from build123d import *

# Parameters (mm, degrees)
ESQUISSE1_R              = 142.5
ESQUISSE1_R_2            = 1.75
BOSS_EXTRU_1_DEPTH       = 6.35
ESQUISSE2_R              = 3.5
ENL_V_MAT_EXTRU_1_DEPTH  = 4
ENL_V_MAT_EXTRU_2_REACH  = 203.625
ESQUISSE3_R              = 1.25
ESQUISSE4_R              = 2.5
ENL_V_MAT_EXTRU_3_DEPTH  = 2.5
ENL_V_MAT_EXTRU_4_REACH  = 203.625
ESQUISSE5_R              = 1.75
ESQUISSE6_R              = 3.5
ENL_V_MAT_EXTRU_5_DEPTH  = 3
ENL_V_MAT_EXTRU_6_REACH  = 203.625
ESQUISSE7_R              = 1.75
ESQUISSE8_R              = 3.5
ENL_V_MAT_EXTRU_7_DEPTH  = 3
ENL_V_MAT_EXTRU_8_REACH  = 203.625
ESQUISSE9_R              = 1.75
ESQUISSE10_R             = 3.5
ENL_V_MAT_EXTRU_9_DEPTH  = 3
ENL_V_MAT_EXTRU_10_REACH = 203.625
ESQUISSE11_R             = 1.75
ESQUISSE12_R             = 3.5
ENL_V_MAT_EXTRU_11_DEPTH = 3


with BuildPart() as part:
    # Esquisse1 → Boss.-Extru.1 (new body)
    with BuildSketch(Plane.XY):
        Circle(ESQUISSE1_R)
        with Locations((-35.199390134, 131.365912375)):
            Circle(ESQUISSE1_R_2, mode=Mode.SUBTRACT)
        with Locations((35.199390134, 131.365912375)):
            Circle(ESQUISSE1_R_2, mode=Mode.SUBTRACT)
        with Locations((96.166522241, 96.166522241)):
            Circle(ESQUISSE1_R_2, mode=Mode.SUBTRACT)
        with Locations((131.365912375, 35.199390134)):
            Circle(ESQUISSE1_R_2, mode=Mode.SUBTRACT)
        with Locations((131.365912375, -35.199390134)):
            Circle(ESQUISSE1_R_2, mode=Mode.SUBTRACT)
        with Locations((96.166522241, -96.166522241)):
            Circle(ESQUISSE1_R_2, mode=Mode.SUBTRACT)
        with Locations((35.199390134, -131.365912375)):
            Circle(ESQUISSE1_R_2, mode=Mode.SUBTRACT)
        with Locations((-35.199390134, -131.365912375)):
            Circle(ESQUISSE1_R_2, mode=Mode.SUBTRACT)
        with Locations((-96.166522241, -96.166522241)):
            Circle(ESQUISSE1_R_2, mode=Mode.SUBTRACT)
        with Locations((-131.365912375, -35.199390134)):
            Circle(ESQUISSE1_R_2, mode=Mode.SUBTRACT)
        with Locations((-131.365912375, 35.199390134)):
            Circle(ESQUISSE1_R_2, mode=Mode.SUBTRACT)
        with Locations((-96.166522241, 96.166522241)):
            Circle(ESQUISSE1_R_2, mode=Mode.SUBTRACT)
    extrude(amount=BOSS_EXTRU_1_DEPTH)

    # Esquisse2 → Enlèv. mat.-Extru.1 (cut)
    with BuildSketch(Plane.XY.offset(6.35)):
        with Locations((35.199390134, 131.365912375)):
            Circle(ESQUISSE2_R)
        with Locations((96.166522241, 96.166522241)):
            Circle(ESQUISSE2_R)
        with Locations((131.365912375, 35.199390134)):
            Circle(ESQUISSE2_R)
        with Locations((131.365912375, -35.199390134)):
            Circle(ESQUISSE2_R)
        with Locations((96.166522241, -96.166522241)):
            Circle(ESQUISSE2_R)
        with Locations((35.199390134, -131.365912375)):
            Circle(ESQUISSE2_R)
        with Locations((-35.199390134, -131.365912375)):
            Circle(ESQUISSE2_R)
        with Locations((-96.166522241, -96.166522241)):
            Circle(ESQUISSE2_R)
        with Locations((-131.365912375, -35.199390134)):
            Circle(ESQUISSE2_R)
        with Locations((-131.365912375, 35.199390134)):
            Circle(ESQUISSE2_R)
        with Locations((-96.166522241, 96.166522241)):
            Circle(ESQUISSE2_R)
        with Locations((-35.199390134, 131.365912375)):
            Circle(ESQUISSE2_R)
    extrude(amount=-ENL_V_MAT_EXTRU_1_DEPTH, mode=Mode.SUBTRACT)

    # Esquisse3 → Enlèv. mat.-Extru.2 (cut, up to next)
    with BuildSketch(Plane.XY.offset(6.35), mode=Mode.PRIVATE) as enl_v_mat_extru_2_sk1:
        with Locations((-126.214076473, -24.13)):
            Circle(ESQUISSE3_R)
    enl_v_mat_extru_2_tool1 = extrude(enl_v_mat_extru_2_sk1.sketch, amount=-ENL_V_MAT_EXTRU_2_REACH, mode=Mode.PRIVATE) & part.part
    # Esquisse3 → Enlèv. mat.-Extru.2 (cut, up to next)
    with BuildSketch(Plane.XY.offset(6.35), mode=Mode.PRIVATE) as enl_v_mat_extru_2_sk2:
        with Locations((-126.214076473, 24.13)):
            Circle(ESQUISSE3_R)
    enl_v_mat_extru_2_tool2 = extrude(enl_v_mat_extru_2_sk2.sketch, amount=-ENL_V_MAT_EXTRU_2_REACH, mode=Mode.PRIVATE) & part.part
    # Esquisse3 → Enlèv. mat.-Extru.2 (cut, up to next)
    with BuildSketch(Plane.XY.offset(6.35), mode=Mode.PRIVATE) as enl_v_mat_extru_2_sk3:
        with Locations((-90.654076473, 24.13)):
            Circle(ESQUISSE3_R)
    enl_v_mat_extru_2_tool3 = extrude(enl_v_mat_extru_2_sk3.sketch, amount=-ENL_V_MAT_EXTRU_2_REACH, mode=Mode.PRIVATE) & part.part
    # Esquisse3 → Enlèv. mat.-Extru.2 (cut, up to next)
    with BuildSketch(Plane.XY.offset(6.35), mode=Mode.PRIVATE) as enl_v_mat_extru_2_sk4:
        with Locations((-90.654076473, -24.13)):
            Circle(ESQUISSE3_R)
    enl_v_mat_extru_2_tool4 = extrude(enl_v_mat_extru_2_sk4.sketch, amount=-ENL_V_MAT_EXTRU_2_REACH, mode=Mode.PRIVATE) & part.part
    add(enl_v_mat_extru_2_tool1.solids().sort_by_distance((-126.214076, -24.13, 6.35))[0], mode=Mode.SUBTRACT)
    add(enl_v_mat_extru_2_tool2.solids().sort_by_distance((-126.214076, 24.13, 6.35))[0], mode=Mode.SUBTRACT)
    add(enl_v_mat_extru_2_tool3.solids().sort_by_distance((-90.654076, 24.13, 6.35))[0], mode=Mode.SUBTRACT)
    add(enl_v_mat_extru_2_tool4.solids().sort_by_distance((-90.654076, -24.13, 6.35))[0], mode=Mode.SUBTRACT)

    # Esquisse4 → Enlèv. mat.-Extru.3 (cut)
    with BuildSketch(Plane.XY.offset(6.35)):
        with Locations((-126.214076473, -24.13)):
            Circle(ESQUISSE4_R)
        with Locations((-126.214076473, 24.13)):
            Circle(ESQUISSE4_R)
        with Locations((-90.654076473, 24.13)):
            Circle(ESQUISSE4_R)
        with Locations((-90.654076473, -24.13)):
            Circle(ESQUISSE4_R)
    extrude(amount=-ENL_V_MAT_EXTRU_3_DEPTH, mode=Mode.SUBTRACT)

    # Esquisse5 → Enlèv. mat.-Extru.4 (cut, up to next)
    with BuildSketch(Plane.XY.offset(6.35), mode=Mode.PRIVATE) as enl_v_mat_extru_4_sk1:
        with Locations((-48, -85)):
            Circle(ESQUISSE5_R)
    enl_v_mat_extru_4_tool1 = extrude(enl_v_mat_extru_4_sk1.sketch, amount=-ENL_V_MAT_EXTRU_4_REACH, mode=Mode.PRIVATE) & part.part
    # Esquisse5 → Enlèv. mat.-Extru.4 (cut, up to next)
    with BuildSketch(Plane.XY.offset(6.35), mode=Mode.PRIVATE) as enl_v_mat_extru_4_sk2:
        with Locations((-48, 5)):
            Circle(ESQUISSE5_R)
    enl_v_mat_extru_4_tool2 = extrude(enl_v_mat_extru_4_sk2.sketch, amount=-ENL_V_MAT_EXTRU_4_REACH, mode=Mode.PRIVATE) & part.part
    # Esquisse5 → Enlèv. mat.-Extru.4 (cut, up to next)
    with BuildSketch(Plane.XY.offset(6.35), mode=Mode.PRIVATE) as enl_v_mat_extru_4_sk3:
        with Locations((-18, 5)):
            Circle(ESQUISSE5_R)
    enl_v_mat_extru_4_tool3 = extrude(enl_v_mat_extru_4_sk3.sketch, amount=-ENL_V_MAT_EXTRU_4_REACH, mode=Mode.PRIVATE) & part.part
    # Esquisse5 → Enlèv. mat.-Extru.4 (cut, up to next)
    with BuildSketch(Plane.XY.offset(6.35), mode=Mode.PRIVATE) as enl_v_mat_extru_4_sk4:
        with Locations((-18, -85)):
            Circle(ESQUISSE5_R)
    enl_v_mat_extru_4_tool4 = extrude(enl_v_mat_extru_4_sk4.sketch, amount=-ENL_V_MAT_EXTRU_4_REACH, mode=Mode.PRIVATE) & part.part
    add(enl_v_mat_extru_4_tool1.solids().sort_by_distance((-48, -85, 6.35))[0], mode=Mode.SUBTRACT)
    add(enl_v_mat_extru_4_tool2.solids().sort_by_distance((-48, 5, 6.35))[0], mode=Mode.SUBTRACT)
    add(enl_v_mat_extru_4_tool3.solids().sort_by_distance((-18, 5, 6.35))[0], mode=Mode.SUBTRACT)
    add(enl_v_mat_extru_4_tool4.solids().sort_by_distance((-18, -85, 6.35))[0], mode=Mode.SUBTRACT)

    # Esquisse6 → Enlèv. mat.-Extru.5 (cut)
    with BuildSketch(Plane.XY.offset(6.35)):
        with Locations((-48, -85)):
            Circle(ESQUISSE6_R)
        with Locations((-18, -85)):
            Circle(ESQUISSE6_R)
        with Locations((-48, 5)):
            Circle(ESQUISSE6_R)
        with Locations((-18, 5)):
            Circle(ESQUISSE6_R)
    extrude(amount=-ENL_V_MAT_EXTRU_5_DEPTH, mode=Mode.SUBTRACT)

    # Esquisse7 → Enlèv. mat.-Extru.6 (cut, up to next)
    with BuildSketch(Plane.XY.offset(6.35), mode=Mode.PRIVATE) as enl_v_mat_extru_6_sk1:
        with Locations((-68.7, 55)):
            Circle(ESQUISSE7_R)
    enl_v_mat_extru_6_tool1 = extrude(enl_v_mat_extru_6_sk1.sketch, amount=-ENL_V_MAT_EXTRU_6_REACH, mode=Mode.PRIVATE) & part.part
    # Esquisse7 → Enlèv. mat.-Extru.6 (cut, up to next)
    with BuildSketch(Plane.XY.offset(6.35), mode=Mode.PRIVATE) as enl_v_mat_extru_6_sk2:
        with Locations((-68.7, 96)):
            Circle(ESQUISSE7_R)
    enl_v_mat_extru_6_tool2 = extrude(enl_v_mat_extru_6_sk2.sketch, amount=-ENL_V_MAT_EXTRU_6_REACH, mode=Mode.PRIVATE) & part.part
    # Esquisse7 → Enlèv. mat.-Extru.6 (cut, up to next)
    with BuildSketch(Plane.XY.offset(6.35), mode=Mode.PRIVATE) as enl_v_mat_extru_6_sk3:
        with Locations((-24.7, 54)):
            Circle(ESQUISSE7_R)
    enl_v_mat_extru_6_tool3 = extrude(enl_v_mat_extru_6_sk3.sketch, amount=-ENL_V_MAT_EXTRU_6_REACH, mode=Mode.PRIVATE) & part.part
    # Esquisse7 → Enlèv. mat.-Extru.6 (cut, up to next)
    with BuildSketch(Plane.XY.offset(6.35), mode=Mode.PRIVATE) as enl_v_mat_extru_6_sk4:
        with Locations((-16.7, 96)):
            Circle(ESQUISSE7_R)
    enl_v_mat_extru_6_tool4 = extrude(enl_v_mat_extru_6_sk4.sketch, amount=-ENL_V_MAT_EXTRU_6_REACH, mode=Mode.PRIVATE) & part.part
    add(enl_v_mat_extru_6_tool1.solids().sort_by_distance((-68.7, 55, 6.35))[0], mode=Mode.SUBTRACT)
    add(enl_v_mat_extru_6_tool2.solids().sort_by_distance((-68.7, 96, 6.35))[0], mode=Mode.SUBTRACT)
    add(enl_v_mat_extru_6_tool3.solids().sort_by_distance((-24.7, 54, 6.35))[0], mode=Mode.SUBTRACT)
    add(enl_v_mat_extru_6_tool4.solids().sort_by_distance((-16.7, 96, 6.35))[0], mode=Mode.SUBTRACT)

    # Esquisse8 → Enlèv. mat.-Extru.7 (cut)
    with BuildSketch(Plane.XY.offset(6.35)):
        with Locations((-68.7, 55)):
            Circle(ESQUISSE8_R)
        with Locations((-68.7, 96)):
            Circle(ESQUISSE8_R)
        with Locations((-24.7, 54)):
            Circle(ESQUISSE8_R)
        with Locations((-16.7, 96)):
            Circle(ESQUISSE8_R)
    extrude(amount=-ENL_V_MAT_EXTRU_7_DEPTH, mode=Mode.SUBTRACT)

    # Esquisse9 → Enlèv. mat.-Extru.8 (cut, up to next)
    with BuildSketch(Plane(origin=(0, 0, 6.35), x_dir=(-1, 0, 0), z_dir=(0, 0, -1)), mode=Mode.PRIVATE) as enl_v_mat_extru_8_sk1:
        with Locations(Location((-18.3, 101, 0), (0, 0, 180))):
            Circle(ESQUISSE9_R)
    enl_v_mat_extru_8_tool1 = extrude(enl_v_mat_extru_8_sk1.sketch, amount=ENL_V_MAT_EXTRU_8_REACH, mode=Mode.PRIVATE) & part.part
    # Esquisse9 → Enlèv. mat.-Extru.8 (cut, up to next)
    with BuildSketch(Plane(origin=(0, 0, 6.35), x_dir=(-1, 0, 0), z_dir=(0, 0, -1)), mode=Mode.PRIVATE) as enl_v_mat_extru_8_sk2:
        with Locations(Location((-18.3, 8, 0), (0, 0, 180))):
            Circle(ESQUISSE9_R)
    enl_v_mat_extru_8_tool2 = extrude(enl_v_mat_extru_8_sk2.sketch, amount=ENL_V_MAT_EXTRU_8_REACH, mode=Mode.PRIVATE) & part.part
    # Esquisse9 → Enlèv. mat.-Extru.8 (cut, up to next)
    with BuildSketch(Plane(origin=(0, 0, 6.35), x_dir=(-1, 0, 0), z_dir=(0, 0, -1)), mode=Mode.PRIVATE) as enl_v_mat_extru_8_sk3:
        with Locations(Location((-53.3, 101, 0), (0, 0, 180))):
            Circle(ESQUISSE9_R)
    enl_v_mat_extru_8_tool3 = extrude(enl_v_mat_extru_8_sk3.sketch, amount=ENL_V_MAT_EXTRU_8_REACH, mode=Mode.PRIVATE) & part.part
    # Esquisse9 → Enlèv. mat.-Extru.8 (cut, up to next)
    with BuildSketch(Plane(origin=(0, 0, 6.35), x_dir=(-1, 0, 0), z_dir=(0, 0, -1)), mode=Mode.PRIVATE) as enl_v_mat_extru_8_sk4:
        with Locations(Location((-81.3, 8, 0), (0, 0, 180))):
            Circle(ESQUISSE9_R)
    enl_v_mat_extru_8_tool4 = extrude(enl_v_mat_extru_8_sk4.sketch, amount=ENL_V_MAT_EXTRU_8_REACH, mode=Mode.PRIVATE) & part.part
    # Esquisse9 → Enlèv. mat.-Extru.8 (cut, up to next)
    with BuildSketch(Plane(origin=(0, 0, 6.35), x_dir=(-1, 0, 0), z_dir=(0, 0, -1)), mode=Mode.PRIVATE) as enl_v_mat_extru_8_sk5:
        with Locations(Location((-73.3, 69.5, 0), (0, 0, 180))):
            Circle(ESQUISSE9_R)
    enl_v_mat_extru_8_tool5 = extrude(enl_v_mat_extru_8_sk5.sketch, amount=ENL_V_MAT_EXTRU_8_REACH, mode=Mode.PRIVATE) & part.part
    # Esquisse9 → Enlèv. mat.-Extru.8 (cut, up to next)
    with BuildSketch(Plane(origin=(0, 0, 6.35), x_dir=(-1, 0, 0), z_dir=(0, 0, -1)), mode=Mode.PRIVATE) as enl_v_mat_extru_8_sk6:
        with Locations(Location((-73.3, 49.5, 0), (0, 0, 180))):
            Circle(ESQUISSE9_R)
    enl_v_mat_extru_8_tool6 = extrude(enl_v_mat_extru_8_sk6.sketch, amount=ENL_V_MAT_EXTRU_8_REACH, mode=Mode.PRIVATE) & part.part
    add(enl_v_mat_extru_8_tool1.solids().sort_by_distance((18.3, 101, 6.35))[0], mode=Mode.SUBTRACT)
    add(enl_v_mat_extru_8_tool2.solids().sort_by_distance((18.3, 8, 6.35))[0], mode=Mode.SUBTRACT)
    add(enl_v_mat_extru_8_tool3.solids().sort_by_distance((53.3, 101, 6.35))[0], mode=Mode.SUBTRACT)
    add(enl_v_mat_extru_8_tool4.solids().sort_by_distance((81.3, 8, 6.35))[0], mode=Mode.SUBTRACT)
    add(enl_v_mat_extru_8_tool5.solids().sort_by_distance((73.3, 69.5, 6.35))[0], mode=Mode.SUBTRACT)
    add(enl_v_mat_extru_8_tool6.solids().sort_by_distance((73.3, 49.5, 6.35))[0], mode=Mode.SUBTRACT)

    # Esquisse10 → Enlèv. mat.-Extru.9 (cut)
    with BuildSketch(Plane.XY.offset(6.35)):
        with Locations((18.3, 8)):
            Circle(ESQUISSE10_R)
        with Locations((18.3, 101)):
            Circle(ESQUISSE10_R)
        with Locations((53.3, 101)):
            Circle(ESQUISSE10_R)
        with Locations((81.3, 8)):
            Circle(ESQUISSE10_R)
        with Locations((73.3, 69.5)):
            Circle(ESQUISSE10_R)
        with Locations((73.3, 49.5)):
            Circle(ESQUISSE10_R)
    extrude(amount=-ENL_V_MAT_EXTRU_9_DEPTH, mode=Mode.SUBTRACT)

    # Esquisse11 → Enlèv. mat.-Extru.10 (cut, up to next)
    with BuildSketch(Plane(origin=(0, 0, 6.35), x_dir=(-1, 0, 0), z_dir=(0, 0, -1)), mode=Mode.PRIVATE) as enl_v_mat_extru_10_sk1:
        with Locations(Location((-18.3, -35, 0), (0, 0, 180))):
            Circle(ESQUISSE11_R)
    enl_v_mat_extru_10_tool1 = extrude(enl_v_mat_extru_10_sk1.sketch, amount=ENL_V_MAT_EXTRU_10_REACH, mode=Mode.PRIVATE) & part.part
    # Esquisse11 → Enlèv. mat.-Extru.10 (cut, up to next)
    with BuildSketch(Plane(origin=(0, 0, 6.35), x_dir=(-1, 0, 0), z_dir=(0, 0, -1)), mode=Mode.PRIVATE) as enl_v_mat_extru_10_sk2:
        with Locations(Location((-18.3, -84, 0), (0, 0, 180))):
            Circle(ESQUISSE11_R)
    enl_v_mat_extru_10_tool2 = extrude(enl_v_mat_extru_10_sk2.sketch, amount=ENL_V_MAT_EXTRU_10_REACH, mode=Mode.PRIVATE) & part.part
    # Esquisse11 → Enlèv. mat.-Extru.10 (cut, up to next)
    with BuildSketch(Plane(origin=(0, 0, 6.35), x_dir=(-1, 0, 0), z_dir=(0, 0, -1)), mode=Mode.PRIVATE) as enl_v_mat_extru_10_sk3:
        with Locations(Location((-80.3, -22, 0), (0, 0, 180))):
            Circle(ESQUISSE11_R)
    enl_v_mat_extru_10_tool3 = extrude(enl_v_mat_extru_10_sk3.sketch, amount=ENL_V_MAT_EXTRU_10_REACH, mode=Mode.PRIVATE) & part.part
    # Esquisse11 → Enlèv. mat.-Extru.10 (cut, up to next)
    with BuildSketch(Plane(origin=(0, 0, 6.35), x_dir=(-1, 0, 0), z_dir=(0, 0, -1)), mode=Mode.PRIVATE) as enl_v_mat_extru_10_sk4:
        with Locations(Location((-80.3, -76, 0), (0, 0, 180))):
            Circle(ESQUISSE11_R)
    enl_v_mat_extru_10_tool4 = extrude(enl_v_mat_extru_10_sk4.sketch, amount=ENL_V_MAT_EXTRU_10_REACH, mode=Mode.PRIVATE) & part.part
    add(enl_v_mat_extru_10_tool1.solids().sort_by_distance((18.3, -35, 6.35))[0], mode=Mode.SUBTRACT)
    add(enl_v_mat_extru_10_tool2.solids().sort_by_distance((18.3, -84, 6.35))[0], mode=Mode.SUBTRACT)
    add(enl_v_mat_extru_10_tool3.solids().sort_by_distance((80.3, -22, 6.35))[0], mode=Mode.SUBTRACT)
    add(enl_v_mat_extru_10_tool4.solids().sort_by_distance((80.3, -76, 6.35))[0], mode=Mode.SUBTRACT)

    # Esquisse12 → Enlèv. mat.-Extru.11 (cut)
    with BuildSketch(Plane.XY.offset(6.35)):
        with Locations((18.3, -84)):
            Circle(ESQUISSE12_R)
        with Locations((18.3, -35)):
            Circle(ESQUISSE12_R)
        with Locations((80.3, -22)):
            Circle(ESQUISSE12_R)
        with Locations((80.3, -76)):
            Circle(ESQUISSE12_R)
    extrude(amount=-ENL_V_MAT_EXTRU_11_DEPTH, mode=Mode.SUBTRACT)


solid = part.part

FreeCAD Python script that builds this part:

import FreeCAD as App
import Part
import Sketcher
Q = App.Units.Quantity

doc = App.newDocument("Part")
body = doc.addObject("PartDesign::Body", "Body")

# Sketch on XY plane
sketch1 = doc.addObject("Sketcher::SketchObject", "Sketch")
body.addObject(sketch1)
sketch1.AttachmentSupport = (doc.XY_Plane, [""])
sketch1.MapMode = "FlatFace"
sketch1.addGeometry(Part.Circle(App.Vector(0, 0, 0), App.Vector(0, 0, 1), 142.5), False)
sketch1.addGeometry(Part.Circle(App.Vector(-96.166522, -96.166522, 0), App.Vector(0, 0, 1), 1.75), False)
sketch1.addGeometry(Part.Circle(App.Vector(-35.19939, -131.365912, 0), App.Vector(0, 0, 1), 1.75), False)
sketch1.addGeometry(Part.Circle(App.Vector(-131.365912, -35.19939, 0), App.Vector(0, 0, 1), 1.75), False)
sketch1.addGeometry(Part.Circle(App.Vector(35.19939, -131.365912, 0), App.Vector(0, 0, 1), 1.75), False)
sketch1.addGeometry(Part.Circle(App.Vector(96.166522, -96.166522, 0), App.Vector(0, 0, 1), 1.75), False)
sketch1.addGeometry(Part.Circle(App.Vector(131.365912, -35.19939, 0), App.Vector(0, 0, 1), 1.75), False)
sketch1.addGeometry(Part.Circle(App.Vector(-131.365912, 35.19939, 0), App.Vector(0, 0, 1), 1.75), False)
sketch1.addGeometry(Part.Circle(App.Vector(-96.166522, 96.166522, 0), App.Vector(0, 0, 1), 1.75), False)
sketch1.addGeometry(Part.Circle(App.Vector(-35.19939, 131.365912, 0), App.Vector(0, 0, 1), 1.75), False)
sketch1.addGeometry(Part.Circle(App.Vector(131.365912, 35.19939, 0), App.Vector(0, 0, 1), 1.75), False)
sketch1.addGeometry(Part.Circle(App.Vector(35.19939, 131.365912, 0), App.Vector(0, 0, 1), 1.75), False)
sketch1.addGeometry(Part.Circle(App.Vector(96.166522, 96.166522, 0), App.Vector(0, 0, 1), 1.75), False)
sketch1.addConstraint(Sketcher.Constraint("Coincident", 0, 3, -1, 1))
sketch1.addConstraint(Sketcher.Constraint("Equal", 1, 2))
sketch1.addConstraint(Sketcher.Constraint("Equal", 2, 3))
sketch1.addConstraint(Sketcher.Constraint("Equal", 3, 4))
sketch1.addConstraint(Sketcher.Constraint("Equal", 4, 5))
sketch1.addConstraint(Sketcher.Constraint("Equal", 5, 6))
sketch1.addConstraint(Sketcher.Constraint("Equal", 6, 7))
sketch1.addConstraint(Sketcher.Constraint("Equal", 7, 8))
sketch1.addConstraint(Sketcher.Constraint("Equal", 8, 9))
sketch1.addConstraint(Sketcher.Constraint("Equal", 9, 10))
sketch1.addConstraint(Sketcher.Constraint("Equal", 10, 11))
sketch1.addConstraint(Sketcher.Constraint("Equal", 11, 12))
sketch1.addConstraint(Sketcher.Constraint("Symmetric", 6, 3, 7, 3, -1, 1))
sketch1.addConstraint(Sketcher.Constraint("Symmetric", 5, 3, 8, 3, -1, 1))
sketch1.addConstraint(Sketcher.Constraint("Symmetric", 4, 3, 9, 3, -1, 1))
sketch1.addConstraint(Sketcher.Constraint("Symmetric", 3, 3, 10, 3, -1, 1))
sketch1.addConstraint(Sketcher.Constraint("Symmetric", 2, 3, 11, 3, -1, 1))
sketch1.addConstraint(Sketcher.Constraint("Symmetric", 1, 3, 12, 3, -1, 1))
sketch1.addConstraint(Sketcher.Constraint("Symmetric", 2, 3, 4, 3, -2))
sketch1.addConstraint(Sketcher.Constraint("Symmetric", 1, 3, 5, 3, -2))
sketch1.addConstraint(Sketcher.Constraint("Symmetric", 3, 3, 6, 3, -2))
sketch1.addConstraint(Sketcher.Constraint("Diameter", 0, Q("285 mm")))
sketch1.addConstraint(Sketcher.Constraint("Diameter", 1, Q("3.5 mm")))
sketch1.addConstraint(Sketcher.Constraint("DistanceX", 2, 3, -1, 1, Q("35.19939 mm")))
sketch1.addConstraint(Sketcher.Constraint("DistanceY", 3, 3, -1, 1, Q("35.19939 mm")))
sketch1.addConstraint(Sketcher.Constraint("DistanceY", 2, 3, 1, 3, Q("35.19939 mm")))
sketch1.addConstraint(Sketcher.Constraint("DistanceX", 3, 3, 1, 3, Q("35.19939 mm")))
sketch1.addConstraint(Sketcher.Constraint("DistanceX", 1, 3, -1, 1, Q("96.166522 mm")))
sketch1.addConstraint(Sketcher.Constraint("DistanceY", 1, 3, -1, 1, Q("96.166522 mm")))
pad1 = doc.addObject("PartDesign::Pad", "Pad")
body.addObject(pad1)
pad1.Profile = sketch1
pad1.Length = 6.35

# Sketch on XY plane
sketch2 = doc.addObject("Sketcher::SketchObject", "Sketch001")
body.addObject(sketch2)
sketch2.AttachmentSupport = (doc.XY_Plane, [""])
sketch2.MapMode = "FlatFace"
sketch2.AttachmentOffset = App.Placement(App.Vector(0, 0, 6.35), App.Rotation())
sketch2.addGeometry(Part.Circle(App.Vector(35.19939, 131.365912, 0), App.Vector(0, 0, 1), 3.5), False)
sketch2.addGeometry(Part.Circle(App.Vector(96.166522, 96.166522, 0), App.Vector(0, 0, 1), 3.5), False)
sketch2.addGeometry(Part.Circle(App.Vector(131.365912, 35.19939, 0), App.Vector(0, 0, 1), 3.5), False)
sketch2.addGeometry(Part.Circle(App.Vector(131.365912, -35.19939, 0), App.Vector(0, 0, 1), 3.5), False)
sketch2.addGeometry(Part.Circle(App.Vector(96.166522, -96.166522, 0), App.Vector(0, 0, 1), 3.5), False)
sketch2.addGeometry(Part.Circle(App.Vector(35.19939, -131.365912, 0), App.Vector(0, 0, 1), 3.5), False)
sketch2.addGeometry(Part.Circle(App.Vector(-35.19939, -131.365912, 0), App.Vector(0, 0, 1), 3.5), False)
sketch2.addGeometry(Part.Circle(App.Vector(-96.166522, -96.166522, 0), App.Vector(0, 0, 1), 3.5), False)
sketch2.addGeometry(Part.Circle(App.Vector(-131.365912, -35.19939, 0), App.Vector(0, 0, 1), 3.5), False)
sketch2.addGeometry(Part.Circle(App.Vector(-131.365912, 35.19939, 0), App.Vector(0, 0, 1), 3.5), False)
sketch2.addGeometry(Part.Circle(App.Vector(-96.166522, 96.166522, 0), App.Vector(0, 0, 1), 3.5), False)
sketch2.addGeometry(Part.Circle(App.Vector(-35.19939, 131.365912, 0), App.Vector(0, 0, 1), 3.5), False)
sketch2.addConstraint(Sketcher.Constraint("Equal", 0, 1))
sketch2.addConstraint(Sketcher.Constraint("Equal", 1, 2))
sketch2.addConstraint(Sketcher.Constraint("Equal", 2, 3))
sketch2.addConstraint(Sketcher.Constraint("Equal", 3, 4))
sketch2.addConstraint(Sketcher.Constraint("Equal", 4, 5))
sketch2.addConstraint(Sketcher.Constraint("Equal", 5, 6))
sketch2.addConstraint(Sketcher.Constraint("Equal", 6, 7))
sketch2.addConstraint(Sketcher.Constraint("Equal", 7, 8))
sketch2.addConstraint(Sketcher.Constraint("Equal", 8, 9))
sketch2.addConstraint(Sketcher.Constraint("Equal", 9, 10))
sketch2.addConstraint(Sketcher.Constraint("Equal", 10, 11))
sketch2.addConstraint(Sketcher.Constraint("Symmetric", 0, 3, 6, 3, -1, 1))
sketch2.addConstraint(Sketcher.Constraint("Symmetric", 1, 3, 7, 3, -1, 1))
sketch2.addConstraint(Sketcher.Constraint("Symmetric", 2, 3, 8, 3, -1, 1))
sketch2.addConstraint(Sketcher.Constraint("Symmetric", 3, 3, 9, 3, -1, 1))
sketch2.addConstraint(Sketcher.Constraint("Symmetric", 4, 3, 10, 3, -1, 1))
sketch2.addConstraint(Sketcher.Constraint("Symmetric", 5, 3, 11, 3, -1, 1))
sketch2.addConstraint(Sketcher.Constraint("Symmetric", 5, 3, 6, 3, -2))
sketch2.addConstraint(Sketcher.Constraint("Symmetric", 4, 3, 7, 3, -2))
sketch2.addConstraint(Sketcher.Constraint("Symmetric", 3, 3, 8, 3, -2))
sketch2.addConstraint(Sketcher.Constraint("Diameter", 0, Q("7 mm")))
sketch2.addConstraint(Sketcher.Constraint("DistanceX", -1, 1, 0, 3, Q("35.19939 mm")))
sketch2.addConstraint(Sketcher.Constraint("DistanceY", -1, 1, 2, 3, Q("35.19939 mm")))
sketch2.addConstraint(Sketcher.Constraint("DistanceY", 1, 3, 0, 3, Q("35.19939 mm")))
sketch2.addConstraint(Sketcher.Constraint("DistanceX", 1, 3, 2, 3, Q("35.19939 mm")))
sketch2.addConstraint(Sketcher.Constraint("DistanceY", -1, 1, 0, 3, Q("131.365912 mm")))
sketch2.addConstraint(Sketcher.Constraint("DistanceX", -1, 1, 1, 3, Q("96.166522 mm")))
pocket1 = doc.addObject("PartDesign::Pocket", "Pocket")
body.addObject(pocket1)
pocket1.Profile = sketch2
pocket1.Length = 4

# Sketch on XY plane
sketch3 = doc.addObject("Sketcher::SketchObject", "Sketch002")
body.addObject(sketch3)
sketch3.AttachmentSupport = (doc.XY_Plane, [""])
sketch3.MapMode = "FlatFace"
sketch3.AttachmentOffset = App.Placement(App.Vector(0, 0, 6.35), App.Rotation())
sketch3.addGeometry(Part.Circle(App.Vector(-126.214076, -24.13, 0), App.Vector(0, 0, 1), 1.25), False)
sketch3.addConstraint(Sketcher.Constraint("Diameter", 0, Q("2.5 mm")))
sketch3.addConstraint(Sketcher.Constraint("DistanceY", 0, 3, -1, 1, Q("24.13 mm")))
sketch3.addConstraint(Sketcher.Constraint("DistanceX", 0, 3, -1, 1, Q("126.214076 mm")))
pocket2 = doc.addObject("PartDesign::Pocket", "Pocket001")
body.addObject(pocket2)
pocket2.Profile = sketch3
pocket2.Type = "UpToFirst"

# Sketch on XY plane
sketch4 = doc.addObject("Sketcher::SketchObject", "Sketch003")
body.addObject(sketch4)
sketch4.AttachmentSupport = (doc.XY_Plane, [""])
sketch4.MapMode = "FlatFace"
sketch4.AttachmentOffset = App.Placement(App.Vector(0, 0, 6.35), App.Rotation())
sketch4.addGeometry(Part.Circle(App.Vector(-126.214076, 24.13, 0), App.Vector(0, 0, 1), 1.25), False)
sketch4.addConstraint(Sketcher.Constraint("Diameter", 0, Q("2.5 mm")))
sketch4.addConstraint(Sketcher.Constraint("DistanceY", -1, 1, 0, 3, Q("24.13 mm")))
sketch4.addConstraint(Sketcher.Constraint("DistanceX", 0, 3, -1, 1, Q("126.214076 mm")))
pocket3 = doc.addObject("PartDesign::Pocket", "Pocket002")
body.addObject(pocket3)
pocket3.Profile = sketch4
pocket3.Type = "UpToFirst"

# Sketch on XY plane
sketch5 = doc.addObject("Sketcher::SketchObject", "Sketch004")
body.addObject(sketch5)
sketch5.AttachmentSupport = (doc.XY_Plane, [""])
sketch5.MapMode = "FlatFace"
sketch5.AttachmentOffset = App.Placement(App.Vector(0, 0, 6.35), App.Rotation())
sketch5.addGeometry(Part.Circle(App.Vector(-90.654076, 24.13, 0), App.Vector(0, 0, 1), 1.25), False)
sketch5.addConstraint(Sketcher.Constraint("Diameter", 0, Q("2.5 mm")))
sketch5.addConstraint(Sketcher.Constraint("DistanceY", -1, 1, 0, 3, Q("24.13 mm")))
sketch5.addConstraint(Sketcher.Constraint("DistanceX", 0, 3, -1, 1, Q("90.654076 mm")))
pocket4 = doc.addObject("PartDesign::Pocket", "Pocket003")
body.addObject(pocket4)
pocket4.Profile = sketch5
pocket4.Type = "UpToFirst"

# Sketch on XY plane
sketch6 = doc.addObject("Sketcher::SketchObject", "Sketch005")
body.addObject(sketch6)
sketch6.AttachmentSupport = (doc.XY_Plane, [""])
sketch6.MapMode = "FlatFace"
sketch6.AttachmentOffset = App.Placement(App.Vector(0, 0, 6.35), App.Rotation())
sketch6.addGeometry(Part.Circle(App.Vector(-90.654076, -24.13, 0), App.Vector(0, 0, 1), 1.25), False)
sketch6.addConstraint(Sketcher.Constraint("Diameter", 0, Q("2.5 mm")))
sketch6.addConstraint(Sketcher.Constraint("DistanceY", 0, 3, -1, 1, Q("24.13 mm")))
sketch6.addConstraint(Sketcher.Constraint("DistanceX", 0, 3, -1, 1, Q("90.654076 mm")))
pocket5 = doc.addObject("PartDesign::Pocket", "Pocket004")
body.addObject(pocket5)
pocket5.Profile = sketch6
pocket5.Type = "UpToFirst"

# Sketch on XY plane
sketch7 = doc.addObject("Sketcher::SketchObject", "Sketch006")
body.addObject(sketch7)
sketch7.AttachmentSupport = (doc.XY_Plane, [""])
sketch7.MapMode = "FlatFace"
sketch7.AttachmentOffset = App.Placement(App.Vector(0, 0, 6.35), App.Rotation())
sketch7.addGeometry(Part.Circle(App.Vector(-126.214076, -24.13, 0), App.Vector(0, 0, 1), 2.5), False)
sketch7.addGeometry(Part.Circle(App.Vector(-126.214076, 24.13, 0), App.Vector(0, 0, 1), 2.5), False)
sketch7.addGeometry(Part.Circle(App.Vector(-90.654076, 24.13, 0), App.Vector(0, 0, 1), 2.5), False)
sketch7.addGeometry(Part.Circle(App.Vector(-90.654076, -24.13, 0), App.Vector(0, 0, 1), 2.5), False)
sketch7.addConstraint(Sketcher.Constraint("Equal", 0, 1))
sketch7.addConstraint(Sketcher.Constraint("Equal", 1, 2))
sketch7.addConstraint(Sketcher.Constraint("Equal", 2, 3))
sketch7.addConstraint(Sketcher.Constraint("Symmetric", 0, 3, 1, 3, -1))
sketch7.addConstraint(Sketcher.Constraint("Symmetric", 2, 3, 3, 3, -1))
sketch7.addConstraint(Sketcher.Constraint("Horizontal", 1, 3, 2, 3))
sketch7.addConstraint(Sketcher.Constraint("Diameter", 0, Q("5 mm")))
sketch7.addConstraint(Sketcher.Constraint("DistanceY", 0, 3, -1, 1, Q("24.13 mm")))
sketch7.addConstraint(Sketcher.Constraint("DistanceX", 1, 3, 2, 3, Q("35.56 mm")))
sketch7.addConstraint(Sketcher.Constraint("DistanceX", 0, 3, -1, 1, Q("126.214076 mm")))
pocket6 = doc.addObject("PartDesign::Pocket", "Pocket005")
body.addObject(pocket6)
pocket6.Profile = sketch7
pocket6.Length = 2.5

# Sketch on XY plane
sketch8 = doc.addObject("Sketcher::SketchObject", "Sketch007")
body.addObject(sketch8)
sketch8.AttachmentSupport = (doc.XY_Plane, [""])
sketch8.MapMode = "FlatFace"
sketch8.AttachmentOffset = App.Placement(App.Vector(0, 0, 6.35), App.Rotation())
sketch8.addGeometry(Part.Circle(App.Vector(-48, -85, 0), App.Vector(0, 0, 1), 1.75), False)
sketch8.addConstraint(Sketcher.Constraint("Diameter", 0, Q("3.5 mm")))
sketch8.addConstraint(Sketcher.Constraint("DistanceX", 0, 3, -1, 1, Q("48 mm")))
sketch8.addConstraint(Sketcher.Constraint("DistanceY", 0, 3, -1, 1, Q("85 mm")))
pocket7 = doc.addObject("PartDesign::Pocket", "Pocket006")
body.addObject(pocket7)
pocket7.Profile = sketch8
pocket7.Type = "UpToFirst"

# Sketch on XY plane
sketch9 = doc.addObject("Sketcher::SketchObject", "Sketch008")
body.addObject(sketch9)
sketch9.AttachmentSupport = (doc.XY_Plane, [""])
sketch9.MapMode = "FlatFace"
sketch9.AttachmentOffset = App.Placement(App.Vector(0, 0, 6.35), App.Rotation())
sketch9.addGeometry(Part.Circle(App.Vector(-48, 5, 0), App.Vector(0, 0, 1), 1.75), False)
sketch9.addConstraint(Sketcher.Constraint("Diameter", 0, Q("3.5 mm")))
sketch9.addConstraint(Sketcher.Constraint("DistanceX", 0, 3, -1, 1, Q("48 mm")))
sketch9.addConstraint(Sketcher.Constraint("DistanceY", -1, 1, 0, 3, Q("5 mm")))
pocket8 = doc.addObject("PartDesign::Pocket", "Pocket007")
body.addObject(pocket8)
pocket8.Profile = sketch9
pocket8.Type = "UpToFirst"

# Sketch on XY plane
sketch10 = doc.addObject("Sketcher::SketchObject", "Sketch009")
body.addObject(sketch10)
sketch10.AttachmentSupport = (doc.XY_Plane, [""])
sketch10.MapMode = "FlatFace"
sketch10.AttachmentOffset = App.Placement(App.Vector(0, 0, 6.35), App.Rotation())
sketch10.addGeometry(Part.Circle(App.Vector(-18, 5, 0), App.Vector(0, 0, 1), 1.75), False)
sketch10.addConstraint(Sketcher.Constraint("Diameter", 0, Q("3.5 mm")))
sketch10.addConstraint(Sketcher.Constraint("DistanceX", 0, 3, -1, 1, Q("18 mm")))
sketch10.addConstraint(Sketcher.Constraint("DistanceY", -1, 1, 0, 3, Q("5 mm")))
pocket9 = doc.addObject("PartDesign::Pocket", "Pocket008")
body.addObject(pocket9)
pocket9.Profile = sketch10
pocket9.Type = "UpToFirst"

# Sketch on XY plane
sketch11 = doc.addObject("Sketcher::SketchObject", "Sketch010")
body.addObject(sketch11)
sketch11.AttachmentSupport = (doc.XY_Plane, [""])
sketch11.MapMode = "FlatFace"
sketch11.AttachmentOffset = App.Placement(App.Vector(0, 0, 6.35), App.Rotation())
sketch11.addGeometry(Part.Circle(App.Vector(-18, -85, 0), App.Vector(0, 0, 1), 1.75), False)
sketch11.addConstraint(Sketcher.Constraint("Diameter", 0, Q("3.5 mm")))
sketch11.addConstraint(Sketcher.Constraint("DistanceX", 0, 3, -1, 1, Q("18 mm")))
sketch11.addConstraint(Sketcher.Constraint("DistanceY", 0, 3, -1, 1, Q("85 mm")))
pocket10 = doc.addObject("PartDesign::Pocket", "Pocket009")
body.addObject(pocket10)
pocket10.Profile = sketch11
pocket10.Type = "UpToFirst"

# Sketch on XY plane
sketch12 = doc.addObject("Sketcher::SketchObject", "Sketch011")
body.addObject(sketch12)
sketch12.AttachmentSupport = (doc.XY_Plane, [""])
sketch12.MapMode = "FlatFace"
sketch12.AttachmentOffset = App.Placement(App.Vector(0, 0, 6.35), App.Rotation())
sketch12.addGeometry(Part.Circle(App.Vector(-48, -85, 0), App.Vector(0, 0, 1), 3.5), False)
sketch12.addGeometry(Part.Circle(App.Vector(-18, -85, 0), App.Vector(0, 0, 1), 3.5), False)
sketch12.addGeometry(Part.Circle(App.Vector(-48, 5, 0), App.Vector(0, 0, 1), 3.5), False)
sketch12.addGeometry(Part.Circle(App.Vector(-18, 5, 0), App.Vector(0, 0, 1), 3.5), False)
sketch12.addConstraint(Sketcher.Constraint("Equal", 0, 1))
sketch12.addConstraint(Sketcher.Constraint("Equal", 1, 2))
sketch12.addConstraint(Sketcher.Constraint("Equal", 2, 3))
sketch12.addConstraint(Sketcher.Constraint("Horizontal", 0, 3, 1, 3))
sketch12.addConstraint(Sketcher.Constraint("Horizontal", 2, 3, 3, 3))
sketch12.addConstraint(Sketcher.Constraint("Vertical", 0, 3, 2, 3))
sketch12.addConstraint(Sketcher.Constraint("Vertical", 1, 3, 3, 3))
sketch12.addConstraint(Sketcher.Constraint("Diameter", 0, Q("7 mm")))
sketch12.addConstraint(Sketcher.Constraint("DistanceX", 0, 3, -1, 1, Q("48 mm")))
sketch12.addConstraint(Sketcher.Constraint("DistanceY", 0, 3, -1, 1, Q("85 mm")))
sketch12.addConstraint(Sketcher.Constraint("DistanceX", 1, 3, -1, 1, Q("18 mm")))
sketch12.addConstraint(Sketcher.Constraint("DistanceY", -1, 1, 2, 3, Q("5 mm")))
pocket11 = doc.addObject("PartDesign::Pocket", "Pocket010")
body.addObject(pocket11)
pocket11.Profile = sketch12
pocket11.Length = 3

# Sketch on XY plane
sketch13 = doc.addObject("Sketcher::SketchObject", "Sketch012")
body.addObject(sketch13)
sketch13.AttachmentSupport = (doc.XY_Plane, [""])
sketch13.MapMode = "FlatFace"
sketch13.AttachmentOffset = App.Placement(App.Vector(0, 0, 6.35), App.Rotation())
sketch13.addGeometry(Part.Circle(App.Vector(-68.7, 55, 0), App.Vector(0, 0, 1), 1.75), False)
sketch13.addConstraint(Sketcher.Constraint("Diameter", 0, Q("3.5 mm")))
sketch13.addConstraint(Sketcher.Constraint("DistanceY", -1, 1, 0, 3, Q("55 mm")))
sketch13.addConstraint(Sketcher.Constraint("DistanceX", 0, 3, -1, 1, Q("68.7 mm")))
pocket12 = doc.addObject("PartDesign::Pocket", "Pocket011")
body.addObject(pocket12)
pocket12.Profile = sketch13
pocket12.Type = "UpToFirst"

# Sketch on XY plane
sketch14 = doc.addObject("Sketcher::SketchObject", "Sketch013")
body.addObject(sketch14)
sketch14.AttachmentSupport = (doc.XY_Plane, [""])
sketch14.MapMode = "FlatFace"
sketch14.AttachmentOffset = App.Placement(App.Vector(0, 0, 6.35), App.Rotation())
sketch14.addGeometry(Part.Circle(App.Vector(-68.7, 96, 0), App.Vector(0, 0, 1), 1.75), False)
sketch14.addConstraint(Sketcher.Constraint("Diameter", 0, Q("3.5 mm")))
sketch14.addConstraint(Sketcher.Constraint("DistanceY", -1, 1, 0, 3, Q("96 mm")))
sketch14.addConstraint(Sketcher.Constraint("DistanceX", 0, 3, -1, 1, Q("68.7 mm")))
pocket13 = doc.addObject("PartDesign::Pocket", "Pocket012")
body.addObject(pocket13)
pocket13.Profile = sketch14
pocket13.Type = "UpToFirst"

# Sketch on XY plane
sketch15 = doc.addObject("Sketcher::SketchObject", "Sketch014")
body.addObject(sketch15)
sketch15.AttachmentSupport = (doc.XY_Plane, [""])
sketch15.MapMode = "FlatFace"
sketch15.AttachmentOffset = App.Placement(App.Vector(0, 0, 6.35), App.Rotation())
sketch15.addGeometry(Part.Circle(App.Vector(-24.7, 54, 0), App.Vector(0, 0, 1), 1.75), False)
sketch15.addConstraint(Sketcher.Constraint("Diameter", 0, Q("3.5 mm")))
sketch15.addConstraint(Sketcher.Constraint("DistanceY", -1, 1, 0, 3, Q("54 mm")))
sketch15.addConstraint(Sketcher.Constraint("DistanceX", 0, 3, -1, 1, Q("24.7 mm")))
pocket14 = doc.addObject("PartDesign::Pocket", "Pocket013")
body.addObject(pocket14)
pocket14.Profile = sketch15
pocket14.Type = "UpToFirst"

# Sketch on XY plane
sketch16 = doc.addObject("Sketcher::SketchObject", "Sketch015")
body.addObject(sketch16)
sketch16.AttachmentSupport = (doc.XY_Plane, [""])
sketch16.MapMode = "FlatFace"
sketch16.AttachmentOffset = App.Placement(App.Vector(0, 0, 6.35), App.Rotation())
sketch16.addGeometry(Part.Circle(App.Vector(-16.7, 96, 0), App.Vector(0, 0, 1), 1.75), False)
sketch16.addConstraint(Sketcher.Constraint("Diameter", 0, Q("3.5 mm")))
sketch16.addConstraint(Sketcher.Constraint("DistanceY", -1, 1, 0, 3, Q("96 mm")))
sketch16.addConstraint(Sketcher.Constraint("DistanceX", 0, 3, -1, 1, Q("16.7 mm")))
pocket15 = doc.addObject("PartDesign::Pocket", "Pocket014")
body.addObject(pocket15)
pocket15.Profile = sketch16
pocket15.Type = "UpToFirst"

# Sketch on XY plane
sketch17 = doc.addObject("Sketcher::SketchObject", "Sketch016")
body.addObject(sketch17)
sketch17.AttachmentSupport = (doc.XY_Plane, [""])
sketch17.MapMode = "FlatFace"
sketch17.AttachmentOffset = App.Placement(App.Vector(0, 0, 6.35), App.Rotation())
sketch17.addGeometry(Part.Circle(App.Vector(-68.7, 55, 0), App.Vector(0, 0, 1), 3.5), False)
sketch17.addGeometry(Part.Circle(App.Vector(-68.7, 96, 0), App.Vector(0, 0, 1), 3.5), False)
sketch17.addGeometry(Part.Circle(App.Vector(-24.7, 54, 0), App.Vector(0, 0, 1), 3.5), False)
sketch17.addGeometry(Part.Circle(App.Vector(-16.7, 96, 0), App.Vector(0, 0, 1), 3.5), False)
sketch17.addConstraint(Sketcher.Constraint("Equal", 0, 1))
sketch17.addConstraint(Sketcher.Constraint("Equal", 1, 2))
sketch17.addConstraint(Sketcher.Constraint("Equal", 2, 3))
sketch17.addConstraint(Sketcher.Constraint("Horizontal", 1, 3, 3, 3))
sketch17.addConstraint(Sketcher.Constraint("Vertical", 0, 3, 1, 3))
sketch17.addConstraint(Sketcher.Constraint("Diameter", 0, Q("7 mm")))
sketch17.addConstraint(Sketcher.Constraint("DistanceY", -1, 1, 0, 3, Q("55 mm")))
sketch17.addConstraint(Sketcher.Constraint("DistanceY", -1, 1, 1, 3, Q("96 mm")))
sketch17.addConstraint(Sketcher.Constraint("DistanceY", -1, 1, 2, 3, Q("54 mm")))
sketch17.addConstraint(Sketcher.Constraint("DistanceX", 0, 3, 2, 3, Q("44 mm")))
sketch17.addConstraint(Sketcher.Constraint("DistanceX", 2, 3, 3, 3, Q("8 mm")))
sketch17.addConstraint(Sketcher.Constraint("DistanceX", 0, 3, -1, 1, Q("68.7 mm")))
pocket16 = doc.addObject("PartDesign::Pocket", "Pocket015")
body.addObject(pocket16)
pocket16.Profile = sketch17
pocket16.Length = 3

# Sketch on XY plane
sketch18 = doc.addObject("Sketcher::SketchObject", "Sketch017")
body.addObject(sketch18)
sketch18.AttachmentSupport = (doc.XY_Plane, [""])
sketch18.MapMode = "FlatFace"
sketch18.AttachmentOffset = App.Placement(App.Vector(0, 0, 6.35), App.Rotation())
sketch18.addGeometry(Part.Circle(App.Vector(18.3, 101, 0), App.Vector(0, 0, 1), 1.75), False)
sketch18.addConstraint(Sketcher.Constraint("Diameter", 0, Q("3.5 mm")))
sketch18.addConstraint(Sketcher.Constraint("DistanceY", -1, 1, 0, 3, Q("101 mm")))
sketch18.addConstraint(Sketcher.Constraint("DistanceX", -1, 1, 0, 3, Q("18.3 mm")))
pocket17 = doc.addObject("PartDesign::Pocket", "Pocket016")
body.addObject(pocket17)
pocket17.Profile = sketch18
pocket17.Type = "UpToFirst"

# Sketch on XY plane
sketch19 = doc.addObject("Sketcher::SketchObject", "Sketch018")
body.addObject(sketch19)
sketch19.AttachmentSupport = (doc.XY_Plane, [""])
sketch19.MapMode = "FlatFace"
sketch19.AttachmentOffset = App.Placement(App.Vector(0, 0, 6.35), App.Rotation())
sketch19.addGeometry(Part.Circle(App.Vector(18.3, 8, 0), App.Vector(0, 0, 1), 1.75), False)
sketch19.addConstraint(Sketcher.Constraint("Diameter", 0, Q("3.5 mm")))
sketch19.addConstraint(Sketcher.Constraint("DistanceY", -1, 1, 0, 3, Q("8 mm")))
sketch19.addConstraint(Sketcher.Constraint("DistanceX", -1, 1, 0, 3, Q("18.3 mm")))
pocket18 = doc.addObject("PartDesign::Pocket", "Pocket017")
body.addObject(pocket18)
pocket18.Profile = sketch19
pocket18.Type = "UpToFirst"

# Sketch on XY plane
sketch20 = doc.addObject("Sketcher::SketchObject", "Sketch019")
body.addObject(sketch20)
sketch20.AttachmentSupport = (doc.XY_Plane, [""])
sketch20.MapMode = "FlatFace"
sketch20.AttachmentOffset = App.Placement(App.Vector(0, 0, 6.35), App.Rotation())
sketch20.addGeometry(Part.Circle(App.Vector(53.3, 101, 0), App.Vector(0, 0, 1), 1.75), False)
sketch20.addConstraint(Sketcher.Constraint("Diameter", 0, Q("3.5 mm")))
sketch20.addConstraint(Sketcher.Constraint("DistanceY", -1, 1, 0, 3, Q("101 mm")))
sketch20.addConstraint(Sketcher.Constraint("DistanceX", -1, 1, 0, 3, Q("53.3 mm")))
pocket19 = doc.addObject("PartDesign::Pocket", "Pocket018")
body.addObject(pocket19)
pocket19.Profile = sketch20
pocket19.Type = "UpToFirst"

# Sketch on XY plane
sketch21 = doc.addObject("Sketcher::SketchObject", "Sketch020")
body.addObject(sketch21)
sketch21.AttachmentSupport = (doc.XY_Plane, [""])
sketch21.MapMode = "FlatFace"
sketch21.AttachmentOffset = App.Placement(App.Vector(0, 0, 6.35), App.Rotation())
sketch21.addGeometry(Part.Circle(App.Vector(81.3, 8, 0), App.Vector(0, 0, 1), 1.75), False)
sketch21.addConstraint(Sketcher.Constraint("Diameter", 0, Q("3.5 mm")))
sketch21.addConstraint(Sketcher.Constraint("DistanceY", -1, 1, 0, 3, Q("8 mm")))
sketch21.addConstraint(Sketcher.Constraint("DistanceX", -1, 1, 0, 3, Q("81.3 mm")))
pocket20 = doc.addObject("PartDesign::Pocket", "Pocket019")
body.addObject(pocket20)
pocket20.Profile = sketch21
pocket20.Type = "UpToFirst"

# Sketch on XY plane
sketch22 = doc.addObject("Sketcher::SketchObject", "Sketch021")
body.addObject(sketch22)
sketch22.AttachmentSupport = (doc.XY_Plane, [""])
sketch22.MapMode = "FlatFace"
sketch22.AttachmentOffset = App.Placement(App.Vector(0, 0, 6.35), App.Rotation())
sketch22.addGeometry(Part.Circle(App.Vector(73.3, 69.5, 0), App.Vector(0, 0, 1), 1.75), False)
sketch22.addConstraint(Sketcher.Constraint("Diameter", 0, Q("3.5 mm")))
sketch22.addConstraint(Sketcher.Constraint("DistanceX", -1, 1, 0, 3, Q("73.3 mm")))
sketch22.addConstraint(Sketcher.Constraint("DistanceY", -1, 1, 0, 3, Q("69.5 mm")))
pocket21 = doc.addObject("PartDesign::Pocket", "Pocket020")
body.addObject(pocket21)
pocket21.Profile = sketch22
pocket21.Type = "UpToFirst"

# Sketch on XY plane
sketch23 = doc.addObject("Sketcher::SketchObject", "Sketch022")
body.addObject(sketch23)
sketch23.AttachmentSupport = (doc.XY_Plane, [""])
sketch23.MapMode = "FlatFace"
sketch23.AttachmentOffset = App.Placement(App.Vector(0, 0, 6.35), App.Rotation())
sketch23.addGeometry(Part.Circle(App.Vector(73.3, 49.5, 0), App.Vector(0, 0, 1), 1.75), False)
sketch23.addConstraint(Sketcher.Constraint("Diameter", 0, Q("3.5 mm")))
sketch23.addConstraint(Sketcher.Constraint("DistanceX", -1, 1, 0, 3, Q("73.3 mm")))
sketch23.addConstraint(Sketcher.Constraint("DistanceY", -1, 1, 0, 3, Q("49.5 mm")))
pocket22 = doc.addObject("PartDesign::Pocket", "Pocket021")
body.addObject(pocket22)
pocket22.Profile = sketch23
pocket22.Type = "UpToFirst"

# Sketch on XY plane
sketch24 = doc.addObject("Sketcher::SketchObject", "Sketch023")
body.addObject(sketch24)
sketch24.AttachmentSupport = (doc.XY_Plane, [""])
sketch24.MapMode = "FlatFace"
sketch24.AttachmentOffset = App.Placement(App.Vector(0, 0, 6.35), App.Rotation())
sketch24.addGeometry(Part.Circle(App.Vector(18.3, 8, 0), App.Vector(0, 0, 1), 3.5), False)
sketch24.addGeometry(Part.Circle(App.Vector(18.3, 101, 0), App.Vector(0, 0, 1), 3.5), False)
sketch24.addGeometry(Part.Circle(App.Vector(53.3, 101, 0), App.Vector(0, 0, 1), 3.5), False)
sketch24.addGeometry(Part.Circle(App.Vector(81.3, 8, 0), App.Vector(0, 0, 1), 3.5), False)
sketch24.addGeometry(Part.Circle(App.Vector(73.3, 69.5, 0), App.Vector(0, 0, 1), 3.5), False)
sketch24.addGeometry(Part.Circle(App.Vector(73.3, 49.5, 0), App.Vector(0, 0, 1), 3.5), False)
sketch24.addConstraint(Sketcher.Constraint("Equal", 0, 1))
sketch24.addConstraint(Sketcher.Constraint("Equal", 1, 2))
sketch24.addConstraint(Sketcher.Constraint("Equal", 2, 3))
sketch24.addConstraint(Sketcher.Constraint("Equal", 3, 4))
sketch24.addConstraint(Sketcher.Constraint("Equal", 4, 5))
sketch24.addConstraint(Sketcher.Constraint("Horizontal", 1, 3, 2, 3))
sketch24.addConstraint(Sketcher.Constraint("Horizontal", 0, 3, 3, 3))
sketch24.addConstraint(Sketcher.Constraint("Vertical", 0, 3, 1, 3))
sketch24.addConstraint(Sketcher.Constraint("Vertical", 4, 3, 5, 3))
sketch24.addConstraint(Sketcher.Constraint("Diameter", 0, Q("7 mm")))
sketch24.addConstraint(Sketcher.Constraint("DistanceY", -1, 1, 0, 3, Q("8 mm")))
sketch24.addConstraint(Sketcher.Constraint("DistanceY", -1, 1, 1, 3, Q("101 mm")))
sketch24.addConstraint(Sketcher.Constraint("DistanceX", 1, 3, 2, 3, Q("35 mm")))
sketch24.addConstraint(Sketcher.Constraint("DistanceX", 0, 3, 3, 3, Q("63 mm")))
sketch24.addConstraint(Sketcher.Constraint("DistanceX", 2, 3, 4, 3, Q("20 mm")))
sketch24.addConstraint(Sketcher.Constraint("DistanceY", 5, 3, 4, 3, Q("20 mm")))
sketch24.addConstraint(Sketcher.Constraint("DistanceX", -1, 1, 0, 3, Q("18.3 mm")))
sketch24.addConstraint(Sketcher.Constraint("DistanceY", -1, 1, 4, 3, Q("69.5 mm")))
pocket23 = doc.addObject("PartDesign::Pocket", "Pocket022")
body.addObject(pocket23)
pocket23.Profile = sketch24
pocket23.Length = 3

# Sketch on XY plane
sketch25 = doc.addObject("Sketcher::SketchObject", "Sketch024")
body.addObject(sketch25)
sketch25.AttachmentSupport = (doc.XY_Plane, [""])
sketch25.MapMode = "FlatFace"
sketch25.AttachmentOffset = App.Placement(App.Vector(0, 0, 6.35), App.Rotation())
sketch25.addGeometry(Part.Circle(App.Vector(18.3, -35, 0), App.Vector(0, 0, 1), 1.75), False)
sketch25.addConstraint(Sketcher.Constraint("Diameter", 0, Q("3.5 mm")))
sketch25.addConstraint(Sketcher.Constraint("DistanceY", 0, 3, -1, 1, Q("35 mm")))
sketch25.addConstraint(Sketcher.Constraint("DistanceX", -1, 1, 0, 3, Q("18.3 mm")))
pocket24 = doc.addObject("PartDesign::Pocket", "Pocket023")
body.addObject(pocket24)
pocket24.Profile = sketch25
pocket24.Type = "UpToFirst"

# Sketch on XY plane
sketch26 = doc.addObject("Sketcher::SketchObject", "Sketch025")
body.addObject(sketch26)
sketch26.AttachmentSupport = (doc.XY_Plane, [""])
sketch26.MapMode = "FlatFace"
sketch26.AttachmentOffset = App.Placement(App.Vector(0, 0, 6.35), App.Rotation())
sketch26.addGeometry(Part.Circle(App.Vector(18.3, -84, 0), App.Vector(0, 0, 1), 1.75), False)
sketch26.addConstraint(Sketcher.Constraint("Diameter", 0, Q("3.5 mm")))
sketch26.addConstraint(Sketcher.Constraint("DistanceY", 0, 3, -1, 1, Q("84 mm")))
sketch26.addConstraint(Sketcher.Constraint("DistanceX", -1, 1, 0, 3, Q("18.3 mm")))
pocket25 = doc.addObject("PartDesign::Pocket", "Pocket024")
body.addObject(pocket25)
pocket25.Profile = sketch26
pocket25.Type = "UpToFirst"

# Sketch on XY plane
sketch27 = doc.addObject("Sketcher::SketchObject", "Sketch026")
body.addObject(sketch27)
sketch27.AttachmentSupport = (doc.XY_Plane, [""])
sketch27.MapMode = "FlatFace"
sketch27.AttachmentOffset = App.Placement(App.Vector(0, 0, 6.35), App.Rotation())
sketch27.addGeometry(Part.Circle(App.Vector(80.3, -22, 0), App.Vector(0, 0, 1), 1.75), False)
sketch27.addConstraint(Sketcher.Constraint("Diameter", 0, Q("3.5 mm")))
sketch27.addConstraint(Sketcher.Constraint("DistanceY", 0, 3, -1, 1, Q("22 mm")))
sketch27.addConstraint(Sketcher.Constraint("DistanceX", -1, 1, 0, 3, Q("80.3 mm")))
pocket26 = doc.addObject("PartDesign::Pocket", "Pocket025")
body.addObject(pocket26)
pocket26.Profile = sketch27
pocket26.Type = "UpToFirst"

# Sketch on XY plane
sketch28 = doc.addObject("Sketcher::SketchObject", "Sketch027")
body.addObject(sketch28)
sketch28.AttachmentSupport = (doc.XY_Plane, [""])
sketch28.MapMode = "FlatFace"
sketch28.AttachmentOffset = App.Placement(App.Vector(0, 0, 6.35), App.Rotation())
sketch28.addGeometry(Part.Circle(App.Vector(80.3, -76, 0), App.Vector(0, 0, 1), 1.75), False)
sketch28.addConstraint(Sketcher.Constraint("Diameter", 0, Q("3.5 mm")))
sketch28.addConstraint(Sketcher.Constraint("DistanceY", 0, 3, -1, 1, Q("76 mm")))
sketch28.addConstraint(Sketcher.Constraint("DistanceX", -1, 1, 0, 3, Q("80.3 mm")))
pocket27 = doc.addObject("PartDesign::Pocket", "Pocket026")
body.addObject(pocket27)
pocket27.Profile = sketch28
pocket27.Type = "UpToFirst"

# Sketch on XY plane
sketch29 = doc.addObject("Sketcher::SketchObject", "Sketch028")
body.addObject(sketch29)
sketch29.AttachmentSupport = (doc.XY_Plane, [""])
sketch29.MapMode = "FlatFace"
sketch29.AttachmentOffset = App.Placement(App.Vector(0, 0, 6.35), App.Rotation())
sketch29.addGeometry(Part.Circle(App.Vector(18.3, -84, 0), App.Vector(0, 0, 1), 3.5), False)
sketch29.addGeometry(Part.Circle(App.Vector(18.3, -35, 0), App.Vector(0, 0, 1), 3.5), False)
sketch29.addGeometry(Part.Circle(App.Vector(80.3, -22, 0), App.Vector(0, 0, 1), 3.5), False)
sketch29.addGeometry(Part.Circle(App.Vector(80.3, -76, 0), App.Vector(0, 0, 1), 3.5), False)
sketch29.addConstraint(Sketcher.Constraint("Equal", 0, 1))
sketch29.addConstraint(Sketcher.Constraint("Equal", 1, 2))
sketch29.addConstraint(Sketcher.Constraint("Equal", 2, 3))
sketch29.addConstraint(Sketcher.Constraint("Vertical", 0, 3, 1, 3))
sketch29.addConstraint(Sketcher.Constraint("Vertical", 2, 3, 3, 3))
sketch29.addConstraint(Sketcher.Constraint("Diameter", 0, Q("7 mm")))
sketch29.addConstraint(Sketcher.Constraint("DistanceY", 0, 3, -1, 1, Q("84 mm")))
sketch29.addConstraint(Sketcher.Constraint("DistanceY", 1, 3, -1, 1, Q("35 mm")))
sketch29.addConstraint(Sketcher.Constraint("DistanceY", 2, 3, -1, 1, Q("22 mm")))
sketch29.addConstraint(Sketcher.Constraint("DistanceY", 3, 3, -1, 1, Q("76 mm")))
sketch29.addConstraint(Sketcher.Constraint("DistanceX", 1, 3, 2, 3, Q("62 mm")))
sketch29.addConstraint(Sketcher.Constraint("DistanceX", -1, 1, 0, 3, Q("18.3 mm")))
pocket28 = doc.addObject("PartDesign::Pocket", "Pocket027")
body.addObject(pocket28)
pocket28.Profile = sketch29
pocket28.Length = 3

doc.recompute()
